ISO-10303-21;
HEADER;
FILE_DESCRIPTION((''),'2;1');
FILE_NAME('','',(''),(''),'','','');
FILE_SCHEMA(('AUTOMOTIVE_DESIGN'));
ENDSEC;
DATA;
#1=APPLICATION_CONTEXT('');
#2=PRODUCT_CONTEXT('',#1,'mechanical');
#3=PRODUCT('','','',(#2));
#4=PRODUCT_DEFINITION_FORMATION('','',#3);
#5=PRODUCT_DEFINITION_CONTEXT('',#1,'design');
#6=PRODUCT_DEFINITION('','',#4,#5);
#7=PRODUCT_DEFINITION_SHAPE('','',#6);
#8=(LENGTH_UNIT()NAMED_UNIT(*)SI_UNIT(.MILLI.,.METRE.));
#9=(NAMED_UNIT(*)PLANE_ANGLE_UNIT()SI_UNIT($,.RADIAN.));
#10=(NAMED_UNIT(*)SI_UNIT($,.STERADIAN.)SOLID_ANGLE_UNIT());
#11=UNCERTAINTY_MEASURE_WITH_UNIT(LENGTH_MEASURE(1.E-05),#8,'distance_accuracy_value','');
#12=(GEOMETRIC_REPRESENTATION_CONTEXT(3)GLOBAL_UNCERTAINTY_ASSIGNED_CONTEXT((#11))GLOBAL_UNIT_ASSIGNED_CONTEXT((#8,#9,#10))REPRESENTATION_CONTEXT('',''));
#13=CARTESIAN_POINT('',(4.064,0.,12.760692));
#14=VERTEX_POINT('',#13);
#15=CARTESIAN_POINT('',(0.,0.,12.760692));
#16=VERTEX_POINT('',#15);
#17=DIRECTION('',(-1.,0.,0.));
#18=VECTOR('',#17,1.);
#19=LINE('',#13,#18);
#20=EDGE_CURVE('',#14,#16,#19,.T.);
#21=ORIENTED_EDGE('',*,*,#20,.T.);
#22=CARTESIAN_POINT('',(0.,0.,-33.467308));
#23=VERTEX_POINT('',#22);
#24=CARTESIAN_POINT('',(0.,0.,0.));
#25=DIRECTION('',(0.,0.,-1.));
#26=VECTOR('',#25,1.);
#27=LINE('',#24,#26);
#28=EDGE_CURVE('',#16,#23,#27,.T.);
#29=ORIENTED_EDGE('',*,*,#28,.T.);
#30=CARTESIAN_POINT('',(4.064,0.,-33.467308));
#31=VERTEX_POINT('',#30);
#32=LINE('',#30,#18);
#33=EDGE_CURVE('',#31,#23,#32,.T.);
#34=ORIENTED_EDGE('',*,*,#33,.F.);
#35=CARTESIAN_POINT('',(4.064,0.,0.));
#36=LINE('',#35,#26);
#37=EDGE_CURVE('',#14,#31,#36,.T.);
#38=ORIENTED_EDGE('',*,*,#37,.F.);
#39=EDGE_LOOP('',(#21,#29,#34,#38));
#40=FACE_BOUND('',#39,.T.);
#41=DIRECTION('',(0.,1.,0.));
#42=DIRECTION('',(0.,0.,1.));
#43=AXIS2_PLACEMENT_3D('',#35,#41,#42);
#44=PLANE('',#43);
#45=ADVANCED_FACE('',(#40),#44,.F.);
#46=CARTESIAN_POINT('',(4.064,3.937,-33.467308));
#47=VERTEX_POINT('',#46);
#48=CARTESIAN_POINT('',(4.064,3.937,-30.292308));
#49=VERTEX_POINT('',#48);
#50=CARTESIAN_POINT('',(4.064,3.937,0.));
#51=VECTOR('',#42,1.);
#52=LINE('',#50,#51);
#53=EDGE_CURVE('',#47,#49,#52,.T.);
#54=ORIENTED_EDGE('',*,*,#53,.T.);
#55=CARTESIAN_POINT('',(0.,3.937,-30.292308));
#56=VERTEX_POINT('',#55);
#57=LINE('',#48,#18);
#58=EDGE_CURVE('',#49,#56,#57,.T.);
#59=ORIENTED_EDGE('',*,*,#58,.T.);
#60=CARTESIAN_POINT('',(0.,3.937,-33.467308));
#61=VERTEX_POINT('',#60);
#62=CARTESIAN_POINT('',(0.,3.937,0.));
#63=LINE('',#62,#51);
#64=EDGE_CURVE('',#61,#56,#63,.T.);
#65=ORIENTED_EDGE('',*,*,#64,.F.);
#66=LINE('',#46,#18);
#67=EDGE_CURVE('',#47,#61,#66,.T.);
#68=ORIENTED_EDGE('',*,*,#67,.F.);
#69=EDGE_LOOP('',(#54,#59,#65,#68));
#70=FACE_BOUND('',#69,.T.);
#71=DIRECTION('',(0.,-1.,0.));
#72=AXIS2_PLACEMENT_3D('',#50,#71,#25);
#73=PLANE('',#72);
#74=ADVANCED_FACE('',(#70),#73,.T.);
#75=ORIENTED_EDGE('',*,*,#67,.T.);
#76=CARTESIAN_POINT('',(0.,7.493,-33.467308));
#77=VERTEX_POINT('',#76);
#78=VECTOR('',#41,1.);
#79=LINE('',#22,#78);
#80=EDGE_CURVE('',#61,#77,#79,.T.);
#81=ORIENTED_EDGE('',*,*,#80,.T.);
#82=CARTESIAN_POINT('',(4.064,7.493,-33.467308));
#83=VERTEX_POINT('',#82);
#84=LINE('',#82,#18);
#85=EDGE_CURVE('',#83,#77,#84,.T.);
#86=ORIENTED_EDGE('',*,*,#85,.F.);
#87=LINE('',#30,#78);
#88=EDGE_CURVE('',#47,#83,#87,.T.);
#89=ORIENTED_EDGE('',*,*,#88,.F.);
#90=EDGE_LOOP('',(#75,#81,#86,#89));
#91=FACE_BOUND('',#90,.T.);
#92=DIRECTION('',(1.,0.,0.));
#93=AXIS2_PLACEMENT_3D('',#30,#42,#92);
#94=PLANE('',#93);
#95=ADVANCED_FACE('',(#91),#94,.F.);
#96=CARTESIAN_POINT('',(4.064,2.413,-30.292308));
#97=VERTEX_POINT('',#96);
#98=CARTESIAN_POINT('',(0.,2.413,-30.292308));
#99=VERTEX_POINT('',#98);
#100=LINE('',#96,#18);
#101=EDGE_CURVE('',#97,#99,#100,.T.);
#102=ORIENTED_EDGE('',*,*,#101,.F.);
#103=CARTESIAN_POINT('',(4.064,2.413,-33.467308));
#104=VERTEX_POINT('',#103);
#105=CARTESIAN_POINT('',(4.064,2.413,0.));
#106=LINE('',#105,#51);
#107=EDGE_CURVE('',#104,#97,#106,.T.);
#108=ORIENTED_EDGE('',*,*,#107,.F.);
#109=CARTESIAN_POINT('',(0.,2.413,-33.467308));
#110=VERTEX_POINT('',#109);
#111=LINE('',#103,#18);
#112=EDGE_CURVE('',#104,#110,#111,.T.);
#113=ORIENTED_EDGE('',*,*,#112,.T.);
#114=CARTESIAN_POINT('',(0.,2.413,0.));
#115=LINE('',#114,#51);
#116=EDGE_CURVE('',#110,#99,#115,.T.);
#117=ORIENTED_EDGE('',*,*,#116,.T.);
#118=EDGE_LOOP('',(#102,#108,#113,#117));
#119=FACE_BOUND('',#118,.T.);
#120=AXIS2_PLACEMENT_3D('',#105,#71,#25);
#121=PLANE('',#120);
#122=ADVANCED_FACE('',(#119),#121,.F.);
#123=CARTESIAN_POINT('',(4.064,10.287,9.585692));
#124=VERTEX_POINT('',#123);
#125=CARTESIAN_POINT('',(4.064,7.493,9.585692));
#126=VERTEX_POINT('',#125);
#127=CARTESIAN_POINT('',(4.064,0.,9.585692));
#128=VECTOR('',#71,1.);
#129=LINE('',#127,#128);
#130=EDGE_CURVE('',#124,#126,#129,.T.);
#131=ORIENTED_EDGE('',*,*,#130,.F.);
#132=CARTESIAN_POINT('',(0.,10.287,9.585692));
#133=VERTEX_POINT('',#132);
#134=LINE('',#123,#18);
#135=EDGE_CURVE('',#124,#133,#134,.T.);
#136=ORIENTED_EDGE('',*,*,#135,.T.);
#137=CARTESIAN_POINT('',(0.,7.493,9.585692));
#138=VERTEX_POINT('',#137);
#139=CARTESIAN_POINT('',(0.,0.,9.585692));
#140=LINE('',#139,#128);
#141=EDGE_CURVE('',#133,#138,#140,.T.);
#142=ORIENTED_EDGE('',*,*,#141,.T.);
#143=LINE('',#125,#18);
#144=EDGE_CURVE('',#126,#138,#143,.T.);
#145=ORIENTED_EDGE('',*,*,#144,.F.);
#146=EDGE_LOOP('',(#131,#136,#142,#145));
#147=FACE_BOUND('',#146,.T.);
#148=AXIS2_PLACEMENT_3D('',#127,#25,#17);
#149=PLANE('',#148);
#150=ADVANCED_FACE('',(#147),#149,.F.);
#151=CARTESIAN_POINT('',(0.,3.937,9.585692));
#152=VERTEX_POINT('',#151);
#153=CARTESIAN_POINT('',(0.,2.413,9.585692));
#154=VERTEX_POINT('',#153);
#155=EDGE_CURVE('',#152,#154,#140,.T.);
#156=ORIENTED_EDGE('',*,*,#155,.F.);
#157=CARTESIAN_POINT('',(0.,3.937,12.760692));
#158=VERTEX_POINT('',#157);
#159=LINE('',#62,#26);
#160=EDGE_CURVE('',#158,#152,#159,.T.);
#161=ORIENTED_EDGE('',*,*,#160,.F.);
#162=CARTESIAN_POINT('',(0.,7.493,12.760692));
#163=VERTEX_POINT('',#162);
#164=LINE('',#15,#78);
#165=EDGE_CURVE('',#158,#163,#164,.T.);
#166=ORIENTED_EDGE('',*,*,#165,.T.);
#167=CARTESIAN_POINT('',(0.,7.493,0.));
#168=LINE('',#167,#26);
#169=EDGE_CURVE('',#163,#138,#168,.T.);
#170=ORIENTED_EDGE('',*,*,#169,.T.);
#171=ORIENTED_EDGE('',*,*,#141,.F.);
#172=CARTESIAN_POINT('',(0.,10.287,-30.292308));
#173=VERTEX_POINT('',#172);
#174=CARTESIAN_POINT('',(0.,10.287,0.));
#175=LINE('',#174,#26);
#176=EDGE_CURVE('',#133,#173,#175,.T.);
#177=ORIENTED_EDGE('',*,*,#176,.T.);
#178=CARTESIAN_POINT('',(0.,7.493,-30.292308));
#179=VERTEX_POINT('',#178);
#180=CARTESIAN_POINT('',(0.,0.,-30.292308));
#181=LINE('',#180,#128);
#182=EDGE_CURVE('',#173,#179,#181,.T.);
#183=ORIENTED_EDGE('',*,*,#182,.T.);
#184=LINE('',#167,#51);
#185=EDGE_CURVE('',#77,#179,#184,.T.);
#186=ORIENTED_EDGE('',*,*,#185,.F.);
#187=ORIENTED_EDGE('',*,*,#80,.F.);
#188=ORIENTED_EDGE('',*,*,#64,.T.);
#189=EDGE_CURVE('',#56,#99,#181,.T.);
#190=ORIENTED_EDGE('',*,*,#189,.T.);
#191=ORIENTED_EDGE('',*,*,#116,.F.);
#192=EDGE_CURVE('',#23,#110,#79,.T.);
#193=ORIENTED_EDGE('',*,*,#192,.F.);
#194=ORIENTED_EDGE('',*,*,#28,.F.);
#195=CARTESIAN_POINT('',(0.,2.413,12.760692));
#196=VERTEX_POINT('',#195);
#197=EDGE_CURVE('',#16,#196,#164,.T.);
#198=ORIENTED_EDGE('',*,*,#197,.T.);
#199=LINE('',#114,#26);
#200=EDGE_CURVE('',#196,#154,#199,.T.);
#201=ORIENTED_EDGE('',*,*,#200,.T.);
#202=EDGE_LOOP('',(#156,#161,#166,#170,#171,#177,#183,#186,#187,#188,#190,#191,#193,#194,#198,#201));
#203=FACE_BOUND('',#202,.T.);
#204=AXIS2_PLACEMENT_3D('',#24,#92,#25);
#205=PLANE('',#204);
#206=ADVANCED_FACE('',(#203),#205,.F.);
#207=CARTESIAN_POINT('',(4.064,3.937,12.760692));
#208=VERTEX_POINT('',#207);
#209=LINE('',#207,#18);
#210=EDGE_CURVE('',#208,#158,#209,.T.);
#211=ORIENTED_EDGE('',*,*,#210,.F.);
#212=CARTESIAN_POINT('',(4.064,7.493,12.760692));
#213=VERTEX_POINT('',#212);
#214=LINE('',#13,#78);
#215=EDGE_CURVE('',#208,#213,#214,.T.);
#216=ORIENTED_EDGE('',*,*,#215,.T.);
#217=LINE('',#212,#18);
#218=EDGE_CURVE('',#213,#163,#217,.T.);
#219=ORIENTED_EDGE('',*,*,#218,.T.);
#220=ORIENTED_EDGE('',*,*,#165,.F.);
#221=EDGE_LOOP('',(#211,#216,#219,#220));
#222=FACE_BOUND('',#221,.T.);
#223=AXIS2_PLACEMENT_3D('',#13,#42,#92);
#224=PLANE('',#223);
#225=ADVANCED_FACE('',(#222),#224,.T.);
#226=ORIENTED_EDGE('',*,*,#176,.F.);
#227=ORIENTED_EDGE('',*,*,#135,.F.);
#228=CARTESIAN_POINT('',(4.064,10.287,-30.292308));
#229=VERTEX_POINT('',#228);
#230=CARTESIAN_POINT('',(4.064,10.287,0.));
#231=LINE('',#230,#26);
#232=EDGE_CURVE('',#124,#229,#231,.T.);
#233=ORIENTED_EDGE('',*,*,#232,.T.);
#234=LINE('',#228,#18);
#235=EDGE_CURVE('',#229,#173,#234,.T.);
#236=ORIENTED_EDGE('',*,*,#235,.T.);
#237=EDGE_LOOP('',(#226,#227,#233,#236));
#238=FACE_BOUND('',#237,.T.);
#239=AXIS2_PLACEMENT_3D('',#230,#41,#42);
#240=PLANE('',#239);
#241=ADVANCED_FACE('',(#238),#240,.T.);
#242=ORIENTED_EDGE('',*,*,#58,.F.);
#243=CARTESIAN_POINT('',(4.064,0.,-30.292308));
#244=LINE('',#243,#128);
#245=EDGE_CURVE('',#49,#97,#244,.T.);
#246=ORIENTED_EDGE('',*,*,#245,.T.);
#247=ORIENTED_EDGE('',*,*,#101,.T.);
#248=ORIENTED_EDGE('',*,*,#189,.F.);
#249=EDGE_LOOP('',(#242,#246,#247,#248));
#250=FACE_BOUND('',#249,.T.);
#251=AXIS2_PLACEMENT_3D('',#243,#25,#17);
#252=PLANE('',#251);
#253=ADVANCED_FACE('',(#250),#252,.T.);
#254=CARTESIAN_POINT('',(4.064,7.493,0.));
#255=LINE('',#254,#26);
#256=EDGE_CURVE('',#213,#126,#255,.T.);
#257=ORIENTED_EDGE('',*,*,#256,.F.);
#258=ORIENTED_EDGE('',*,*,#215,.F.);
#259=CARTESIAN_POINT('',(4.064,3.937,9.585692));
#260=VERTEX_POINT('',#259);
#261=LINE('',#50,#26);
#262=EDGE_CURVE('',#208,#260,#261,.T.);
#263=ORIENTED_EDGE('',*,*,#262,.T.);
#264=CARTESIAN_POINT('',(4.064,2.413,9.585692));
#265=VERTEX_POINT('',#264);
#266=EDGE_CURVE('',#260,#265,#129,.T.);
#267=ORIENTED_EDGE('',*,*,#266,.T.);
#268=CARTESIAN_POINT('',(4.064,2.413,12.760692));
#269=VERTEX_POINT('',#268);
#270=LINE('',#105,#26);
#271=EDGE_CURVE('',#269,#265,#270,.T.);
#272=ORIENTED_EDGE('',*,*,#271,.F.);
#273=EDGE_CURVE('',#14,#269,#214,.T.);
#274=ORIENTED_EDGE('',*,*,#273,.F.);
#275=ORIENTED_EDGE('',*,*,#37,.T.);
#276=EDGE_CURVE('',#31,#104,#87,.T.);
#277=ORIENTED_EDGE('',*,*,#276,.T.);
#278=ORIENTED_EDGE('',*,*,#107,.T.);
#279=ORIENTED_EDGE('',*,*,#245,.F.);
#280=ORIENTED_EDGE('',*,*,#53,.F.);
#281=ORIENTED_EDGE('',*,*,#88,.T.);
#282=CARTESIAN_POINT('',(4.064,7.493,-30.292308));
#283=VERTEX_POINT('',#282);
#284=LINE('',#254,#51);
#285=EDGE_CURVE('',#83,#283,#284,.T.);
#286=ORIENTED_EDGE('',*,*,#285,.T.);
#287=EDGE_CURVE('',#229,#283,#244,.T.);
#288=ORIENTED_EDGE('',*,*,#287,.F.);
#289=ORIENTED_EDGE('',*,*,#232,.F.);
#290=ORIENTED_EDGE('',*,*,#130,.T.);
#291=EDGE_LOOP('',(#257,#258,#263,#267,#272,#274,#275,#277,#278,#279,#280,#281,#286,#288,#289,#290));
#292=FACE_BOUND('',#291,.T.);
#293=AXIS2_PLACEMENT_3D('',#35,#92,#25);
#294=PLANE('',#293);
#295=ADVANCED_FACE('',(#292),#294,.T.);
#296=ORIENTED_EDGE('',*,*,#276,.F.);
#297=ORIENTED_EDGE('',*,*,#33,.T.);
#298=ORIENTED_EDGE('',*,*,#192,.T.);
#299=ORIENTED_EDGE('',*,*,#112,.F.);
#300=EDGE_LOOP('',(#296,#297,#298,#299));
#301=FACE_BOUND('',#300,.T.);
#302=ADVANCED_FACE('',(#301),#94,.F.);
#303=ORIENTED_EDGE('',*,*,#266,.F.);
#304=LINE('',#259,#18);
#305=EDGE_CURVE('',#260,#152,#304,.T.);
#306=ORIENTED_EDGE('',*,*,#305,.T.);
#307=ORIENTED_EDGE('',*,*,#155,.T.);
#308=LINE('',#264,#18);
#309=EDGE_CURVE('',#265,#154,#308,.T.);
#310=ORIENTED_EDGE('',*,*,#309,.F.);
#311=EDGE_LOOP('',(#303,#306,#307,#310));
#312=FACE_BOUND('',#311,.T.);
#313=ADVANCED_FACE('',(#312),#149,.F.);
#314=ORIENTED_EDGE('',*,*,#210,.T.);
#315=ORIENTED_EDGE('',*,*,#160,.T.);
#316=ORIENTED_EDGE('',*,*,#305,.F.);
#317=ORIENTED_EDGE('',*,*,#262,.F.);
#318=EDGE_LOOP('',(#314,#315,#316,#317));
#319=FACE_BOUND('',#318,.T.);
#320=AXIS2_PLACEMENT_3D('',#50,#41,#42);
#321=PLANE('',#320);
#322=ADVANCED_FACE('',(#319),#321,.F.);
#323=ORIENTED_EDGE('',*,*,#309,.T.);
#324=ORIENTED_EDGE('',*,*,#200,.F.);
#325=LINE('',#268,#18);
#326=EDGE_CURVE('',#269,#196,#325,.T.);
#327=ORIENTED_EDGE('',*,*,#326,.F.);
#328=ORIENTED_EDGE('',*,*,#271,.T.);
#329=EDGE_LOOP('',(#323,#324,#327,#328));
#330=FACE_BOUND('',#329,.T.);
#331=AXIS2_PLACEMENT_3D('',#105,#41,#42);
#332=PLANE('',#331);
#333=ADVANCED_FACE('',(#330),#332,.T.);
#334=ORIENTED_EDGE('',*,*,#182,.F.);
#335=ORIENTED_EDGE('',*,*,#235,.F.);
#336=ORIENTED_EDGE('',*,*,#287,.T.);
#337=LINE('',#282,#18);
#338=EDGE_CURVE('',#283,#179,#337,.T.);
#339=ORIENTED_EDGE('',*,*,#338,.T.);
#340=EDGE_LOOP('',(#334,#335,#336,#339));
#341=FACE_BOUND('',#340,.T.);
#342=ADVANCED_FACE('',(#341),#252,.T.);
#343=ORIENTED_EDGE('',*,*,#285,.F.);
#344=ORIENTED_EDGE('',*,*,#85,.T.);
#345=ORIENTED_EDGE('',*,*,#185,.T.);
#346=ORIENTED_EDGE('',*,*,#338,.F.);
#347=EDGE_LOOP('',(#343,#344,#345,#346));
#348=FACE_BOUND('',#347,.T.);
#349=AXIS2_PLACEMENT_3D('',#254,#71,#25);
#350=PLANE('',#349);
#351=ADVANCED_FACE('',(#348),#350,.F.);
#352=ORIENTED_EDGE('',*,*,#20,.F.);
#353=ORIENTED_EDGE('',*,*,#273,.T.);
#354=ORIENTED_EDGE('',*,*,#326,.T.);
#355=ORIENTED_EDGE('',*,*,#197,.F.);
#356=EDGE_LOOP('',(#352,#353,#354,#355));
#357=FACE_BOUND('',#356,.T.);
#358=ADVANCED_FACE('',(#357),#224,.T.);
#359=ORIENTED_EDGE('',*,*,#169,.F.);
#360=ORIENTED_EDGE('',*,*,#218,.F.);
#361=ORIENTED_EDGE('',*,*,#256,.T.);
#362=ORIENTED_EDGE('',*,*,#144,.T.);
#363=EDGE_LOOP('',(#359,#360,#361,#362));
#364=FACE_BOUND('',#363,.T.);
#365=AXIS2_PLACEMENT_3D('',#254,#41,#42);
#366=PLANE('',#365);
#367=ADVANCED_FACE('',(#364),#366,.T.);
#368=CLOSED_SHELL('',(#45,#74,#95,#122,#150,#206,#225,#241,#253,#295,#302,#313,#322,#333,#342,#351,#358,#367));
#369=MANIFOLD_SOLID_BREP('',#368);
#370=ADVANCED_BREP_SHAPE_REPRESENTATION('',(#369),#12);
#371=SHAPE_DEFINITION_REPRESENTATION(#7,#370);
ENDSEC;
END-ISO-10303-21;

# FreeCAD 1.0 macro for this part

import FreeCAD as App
import Part
import Sketcher
from FreeCAD import Vector
Q = App.Units.Quantity


def add_polygon(sketch, points):
    """Adds a closed chain of lines whose ends are joined by coincident constraints."""
    first, n = sketch.GeometryCount, len(points)
    for a, b in zip(points, points[1:] + points[:1]):
        sketch.addGeometry(Part.LineSegment(App.Vector(*a, 0), App.Vector(*b, 0)), False)
    for i in range(n):
        sketch.addConstraint(Sketcher.Constraint("Coincident", first + i, 2, first + (i + 1) % n, 1))

doc = App.newDocument("Part")
params = doc.addObject("Spreadsheet::Sheet", "Params")
for row, (alias, value) in enumerate([
    ("sketch1_width", "0.06 in"),
    ("sketch1_width2", "0.14 in"),
    ("sketch1_width3", "0.11 in"),
    ("sketch1_height", "1.57 in"),
    ("sketch1_height2", "1.82 in"),
    ("pad1_length", "0.16 in"),
], start=1):
    params.set(f"A{row}", alias)
    params.set(f"B{row}", "=" + value)
    params.setAlias(f"B{row}", alias)

body = doc.addObject("PartDesign::Body", "Body")

# Sketch on YZ plane
sketch1 = doc.addObject("Sketcher::SketchObject", "Sketch")
body.addObject(sketch1)
sketch1.AttachmentSupport = (doc.YZ_Plane, [""])
sketch1.MapMode = "FlatFace"
add_polygon(sketch1, [(0, -33.5), (2.4, -33.5), (2.4, -30.3), (3.9, -30.3), (3.9, -33.5), (7.5, -33.5), (7.5, -30.3), (10.3, -30.3), (10.3, 9.6), (7.5, 9.6), (7.5, 12.8), (3.9, 12.8), (3.9, 9.6), (2.4, 9.6), (2.4, 12.8), (0, 12.8)])  # lines 0-15
sketch1.addConstraint([
    Sketcher.Constraint("Horizontal", 0),
    Sketcher.Constraint("Vertical", 1),
    Sketcher.Constraint("Horizontal", 2),
    Sketcher.Constraint("Vertical", 3),
    Sketcher.Constraint("Horizontal", 4),
    Sketcher.Constraint("Vertical", 5),
    Sketcher.Constraint("Horizontal", 6),
    Sketcher.Constraint("Vertical", 7),
    Sketcher.Constraint("Horizontal", 8),
    Sketcher.Constraint("Vertical", 9),
    Sketcher.Constraint("Horizontal", 10),
    Sketcher.Constraint("Vertical", 11),
    Sketcher.Constraint("Horizontal", 12),
    Sketcher.Constraint("Vertical", 13),
    Sketcher.Constraint("Horizontal", 14),
    Sketcher.Constraint("Vertical", 15),
    Sketcher.Constraint("PointOnObject", 14, 2, -2),
    Sketcher.Constraint("Horizontal", 0, 2, 3, 2),
    Sketcher.Constraint("Horizontal", 2, 2, 5, 2),
    Sketcher.Constraint("Horizontal", 8, 2, 11, 2),
    Sketcher.Constraint("Horizontal", 10, 2, 13, 2),
    Sketcher.Constraint("Vertical", 5, 2, 8, 2),
    Sketcher.Constraint("Vertical", 3, 2, 10, 2),
    Sketcher.Constraint("Vertical", 1, 2, 12, 2),
    Sketcher.Constraint("Equal", 5, 9),
    Sketcher.Constraint("DistanceX", 2, 1, 2, 2, Q("0.06 in")),
    Sketcher.Constraint("DistanceX", 4, 1, 4, 2, Q("0.14 in")),
    Sketcher.Constraint("DistanceX", 6, 1, 6, 2, Q("0.11 in")),
    Sketcher.Constraint("DistanceY", 7, 1, 7, 2, Q("1.57 in")),
    Sketcher.Constraint("DistanceY", 15, 2, 15, 1, Q("1.82 in")),
    Sketcher.Constraint("DistanceX", 0, 1, 0, 2, Q("0.095 in")),
    Sketcher.Constraint("DistanceY", 0, 2, -1, 1, 33.467308),
])
sketch1.setExpression("Constraints[41]", "Params.sketch1_width")
sketch1.setExpression("Constraints[42]", "Params.sketch1_width2")
sketch1.setExpression("Constraints[43]", "Params.sketch1_width3")
sketch1.setExpression("Constraints[44]", "Params.sketch1_height")
sketch1.setExpression("Constraints[45]", "Params.sketch1_height2")
pad1 = doc.addObject("PartDesign::Pad", "Pad")
body.addObject(pad1)
pad1.Profile = sketch1
pad1.setExpression("Length", "Params.pad1_length")

doc.recompute()
